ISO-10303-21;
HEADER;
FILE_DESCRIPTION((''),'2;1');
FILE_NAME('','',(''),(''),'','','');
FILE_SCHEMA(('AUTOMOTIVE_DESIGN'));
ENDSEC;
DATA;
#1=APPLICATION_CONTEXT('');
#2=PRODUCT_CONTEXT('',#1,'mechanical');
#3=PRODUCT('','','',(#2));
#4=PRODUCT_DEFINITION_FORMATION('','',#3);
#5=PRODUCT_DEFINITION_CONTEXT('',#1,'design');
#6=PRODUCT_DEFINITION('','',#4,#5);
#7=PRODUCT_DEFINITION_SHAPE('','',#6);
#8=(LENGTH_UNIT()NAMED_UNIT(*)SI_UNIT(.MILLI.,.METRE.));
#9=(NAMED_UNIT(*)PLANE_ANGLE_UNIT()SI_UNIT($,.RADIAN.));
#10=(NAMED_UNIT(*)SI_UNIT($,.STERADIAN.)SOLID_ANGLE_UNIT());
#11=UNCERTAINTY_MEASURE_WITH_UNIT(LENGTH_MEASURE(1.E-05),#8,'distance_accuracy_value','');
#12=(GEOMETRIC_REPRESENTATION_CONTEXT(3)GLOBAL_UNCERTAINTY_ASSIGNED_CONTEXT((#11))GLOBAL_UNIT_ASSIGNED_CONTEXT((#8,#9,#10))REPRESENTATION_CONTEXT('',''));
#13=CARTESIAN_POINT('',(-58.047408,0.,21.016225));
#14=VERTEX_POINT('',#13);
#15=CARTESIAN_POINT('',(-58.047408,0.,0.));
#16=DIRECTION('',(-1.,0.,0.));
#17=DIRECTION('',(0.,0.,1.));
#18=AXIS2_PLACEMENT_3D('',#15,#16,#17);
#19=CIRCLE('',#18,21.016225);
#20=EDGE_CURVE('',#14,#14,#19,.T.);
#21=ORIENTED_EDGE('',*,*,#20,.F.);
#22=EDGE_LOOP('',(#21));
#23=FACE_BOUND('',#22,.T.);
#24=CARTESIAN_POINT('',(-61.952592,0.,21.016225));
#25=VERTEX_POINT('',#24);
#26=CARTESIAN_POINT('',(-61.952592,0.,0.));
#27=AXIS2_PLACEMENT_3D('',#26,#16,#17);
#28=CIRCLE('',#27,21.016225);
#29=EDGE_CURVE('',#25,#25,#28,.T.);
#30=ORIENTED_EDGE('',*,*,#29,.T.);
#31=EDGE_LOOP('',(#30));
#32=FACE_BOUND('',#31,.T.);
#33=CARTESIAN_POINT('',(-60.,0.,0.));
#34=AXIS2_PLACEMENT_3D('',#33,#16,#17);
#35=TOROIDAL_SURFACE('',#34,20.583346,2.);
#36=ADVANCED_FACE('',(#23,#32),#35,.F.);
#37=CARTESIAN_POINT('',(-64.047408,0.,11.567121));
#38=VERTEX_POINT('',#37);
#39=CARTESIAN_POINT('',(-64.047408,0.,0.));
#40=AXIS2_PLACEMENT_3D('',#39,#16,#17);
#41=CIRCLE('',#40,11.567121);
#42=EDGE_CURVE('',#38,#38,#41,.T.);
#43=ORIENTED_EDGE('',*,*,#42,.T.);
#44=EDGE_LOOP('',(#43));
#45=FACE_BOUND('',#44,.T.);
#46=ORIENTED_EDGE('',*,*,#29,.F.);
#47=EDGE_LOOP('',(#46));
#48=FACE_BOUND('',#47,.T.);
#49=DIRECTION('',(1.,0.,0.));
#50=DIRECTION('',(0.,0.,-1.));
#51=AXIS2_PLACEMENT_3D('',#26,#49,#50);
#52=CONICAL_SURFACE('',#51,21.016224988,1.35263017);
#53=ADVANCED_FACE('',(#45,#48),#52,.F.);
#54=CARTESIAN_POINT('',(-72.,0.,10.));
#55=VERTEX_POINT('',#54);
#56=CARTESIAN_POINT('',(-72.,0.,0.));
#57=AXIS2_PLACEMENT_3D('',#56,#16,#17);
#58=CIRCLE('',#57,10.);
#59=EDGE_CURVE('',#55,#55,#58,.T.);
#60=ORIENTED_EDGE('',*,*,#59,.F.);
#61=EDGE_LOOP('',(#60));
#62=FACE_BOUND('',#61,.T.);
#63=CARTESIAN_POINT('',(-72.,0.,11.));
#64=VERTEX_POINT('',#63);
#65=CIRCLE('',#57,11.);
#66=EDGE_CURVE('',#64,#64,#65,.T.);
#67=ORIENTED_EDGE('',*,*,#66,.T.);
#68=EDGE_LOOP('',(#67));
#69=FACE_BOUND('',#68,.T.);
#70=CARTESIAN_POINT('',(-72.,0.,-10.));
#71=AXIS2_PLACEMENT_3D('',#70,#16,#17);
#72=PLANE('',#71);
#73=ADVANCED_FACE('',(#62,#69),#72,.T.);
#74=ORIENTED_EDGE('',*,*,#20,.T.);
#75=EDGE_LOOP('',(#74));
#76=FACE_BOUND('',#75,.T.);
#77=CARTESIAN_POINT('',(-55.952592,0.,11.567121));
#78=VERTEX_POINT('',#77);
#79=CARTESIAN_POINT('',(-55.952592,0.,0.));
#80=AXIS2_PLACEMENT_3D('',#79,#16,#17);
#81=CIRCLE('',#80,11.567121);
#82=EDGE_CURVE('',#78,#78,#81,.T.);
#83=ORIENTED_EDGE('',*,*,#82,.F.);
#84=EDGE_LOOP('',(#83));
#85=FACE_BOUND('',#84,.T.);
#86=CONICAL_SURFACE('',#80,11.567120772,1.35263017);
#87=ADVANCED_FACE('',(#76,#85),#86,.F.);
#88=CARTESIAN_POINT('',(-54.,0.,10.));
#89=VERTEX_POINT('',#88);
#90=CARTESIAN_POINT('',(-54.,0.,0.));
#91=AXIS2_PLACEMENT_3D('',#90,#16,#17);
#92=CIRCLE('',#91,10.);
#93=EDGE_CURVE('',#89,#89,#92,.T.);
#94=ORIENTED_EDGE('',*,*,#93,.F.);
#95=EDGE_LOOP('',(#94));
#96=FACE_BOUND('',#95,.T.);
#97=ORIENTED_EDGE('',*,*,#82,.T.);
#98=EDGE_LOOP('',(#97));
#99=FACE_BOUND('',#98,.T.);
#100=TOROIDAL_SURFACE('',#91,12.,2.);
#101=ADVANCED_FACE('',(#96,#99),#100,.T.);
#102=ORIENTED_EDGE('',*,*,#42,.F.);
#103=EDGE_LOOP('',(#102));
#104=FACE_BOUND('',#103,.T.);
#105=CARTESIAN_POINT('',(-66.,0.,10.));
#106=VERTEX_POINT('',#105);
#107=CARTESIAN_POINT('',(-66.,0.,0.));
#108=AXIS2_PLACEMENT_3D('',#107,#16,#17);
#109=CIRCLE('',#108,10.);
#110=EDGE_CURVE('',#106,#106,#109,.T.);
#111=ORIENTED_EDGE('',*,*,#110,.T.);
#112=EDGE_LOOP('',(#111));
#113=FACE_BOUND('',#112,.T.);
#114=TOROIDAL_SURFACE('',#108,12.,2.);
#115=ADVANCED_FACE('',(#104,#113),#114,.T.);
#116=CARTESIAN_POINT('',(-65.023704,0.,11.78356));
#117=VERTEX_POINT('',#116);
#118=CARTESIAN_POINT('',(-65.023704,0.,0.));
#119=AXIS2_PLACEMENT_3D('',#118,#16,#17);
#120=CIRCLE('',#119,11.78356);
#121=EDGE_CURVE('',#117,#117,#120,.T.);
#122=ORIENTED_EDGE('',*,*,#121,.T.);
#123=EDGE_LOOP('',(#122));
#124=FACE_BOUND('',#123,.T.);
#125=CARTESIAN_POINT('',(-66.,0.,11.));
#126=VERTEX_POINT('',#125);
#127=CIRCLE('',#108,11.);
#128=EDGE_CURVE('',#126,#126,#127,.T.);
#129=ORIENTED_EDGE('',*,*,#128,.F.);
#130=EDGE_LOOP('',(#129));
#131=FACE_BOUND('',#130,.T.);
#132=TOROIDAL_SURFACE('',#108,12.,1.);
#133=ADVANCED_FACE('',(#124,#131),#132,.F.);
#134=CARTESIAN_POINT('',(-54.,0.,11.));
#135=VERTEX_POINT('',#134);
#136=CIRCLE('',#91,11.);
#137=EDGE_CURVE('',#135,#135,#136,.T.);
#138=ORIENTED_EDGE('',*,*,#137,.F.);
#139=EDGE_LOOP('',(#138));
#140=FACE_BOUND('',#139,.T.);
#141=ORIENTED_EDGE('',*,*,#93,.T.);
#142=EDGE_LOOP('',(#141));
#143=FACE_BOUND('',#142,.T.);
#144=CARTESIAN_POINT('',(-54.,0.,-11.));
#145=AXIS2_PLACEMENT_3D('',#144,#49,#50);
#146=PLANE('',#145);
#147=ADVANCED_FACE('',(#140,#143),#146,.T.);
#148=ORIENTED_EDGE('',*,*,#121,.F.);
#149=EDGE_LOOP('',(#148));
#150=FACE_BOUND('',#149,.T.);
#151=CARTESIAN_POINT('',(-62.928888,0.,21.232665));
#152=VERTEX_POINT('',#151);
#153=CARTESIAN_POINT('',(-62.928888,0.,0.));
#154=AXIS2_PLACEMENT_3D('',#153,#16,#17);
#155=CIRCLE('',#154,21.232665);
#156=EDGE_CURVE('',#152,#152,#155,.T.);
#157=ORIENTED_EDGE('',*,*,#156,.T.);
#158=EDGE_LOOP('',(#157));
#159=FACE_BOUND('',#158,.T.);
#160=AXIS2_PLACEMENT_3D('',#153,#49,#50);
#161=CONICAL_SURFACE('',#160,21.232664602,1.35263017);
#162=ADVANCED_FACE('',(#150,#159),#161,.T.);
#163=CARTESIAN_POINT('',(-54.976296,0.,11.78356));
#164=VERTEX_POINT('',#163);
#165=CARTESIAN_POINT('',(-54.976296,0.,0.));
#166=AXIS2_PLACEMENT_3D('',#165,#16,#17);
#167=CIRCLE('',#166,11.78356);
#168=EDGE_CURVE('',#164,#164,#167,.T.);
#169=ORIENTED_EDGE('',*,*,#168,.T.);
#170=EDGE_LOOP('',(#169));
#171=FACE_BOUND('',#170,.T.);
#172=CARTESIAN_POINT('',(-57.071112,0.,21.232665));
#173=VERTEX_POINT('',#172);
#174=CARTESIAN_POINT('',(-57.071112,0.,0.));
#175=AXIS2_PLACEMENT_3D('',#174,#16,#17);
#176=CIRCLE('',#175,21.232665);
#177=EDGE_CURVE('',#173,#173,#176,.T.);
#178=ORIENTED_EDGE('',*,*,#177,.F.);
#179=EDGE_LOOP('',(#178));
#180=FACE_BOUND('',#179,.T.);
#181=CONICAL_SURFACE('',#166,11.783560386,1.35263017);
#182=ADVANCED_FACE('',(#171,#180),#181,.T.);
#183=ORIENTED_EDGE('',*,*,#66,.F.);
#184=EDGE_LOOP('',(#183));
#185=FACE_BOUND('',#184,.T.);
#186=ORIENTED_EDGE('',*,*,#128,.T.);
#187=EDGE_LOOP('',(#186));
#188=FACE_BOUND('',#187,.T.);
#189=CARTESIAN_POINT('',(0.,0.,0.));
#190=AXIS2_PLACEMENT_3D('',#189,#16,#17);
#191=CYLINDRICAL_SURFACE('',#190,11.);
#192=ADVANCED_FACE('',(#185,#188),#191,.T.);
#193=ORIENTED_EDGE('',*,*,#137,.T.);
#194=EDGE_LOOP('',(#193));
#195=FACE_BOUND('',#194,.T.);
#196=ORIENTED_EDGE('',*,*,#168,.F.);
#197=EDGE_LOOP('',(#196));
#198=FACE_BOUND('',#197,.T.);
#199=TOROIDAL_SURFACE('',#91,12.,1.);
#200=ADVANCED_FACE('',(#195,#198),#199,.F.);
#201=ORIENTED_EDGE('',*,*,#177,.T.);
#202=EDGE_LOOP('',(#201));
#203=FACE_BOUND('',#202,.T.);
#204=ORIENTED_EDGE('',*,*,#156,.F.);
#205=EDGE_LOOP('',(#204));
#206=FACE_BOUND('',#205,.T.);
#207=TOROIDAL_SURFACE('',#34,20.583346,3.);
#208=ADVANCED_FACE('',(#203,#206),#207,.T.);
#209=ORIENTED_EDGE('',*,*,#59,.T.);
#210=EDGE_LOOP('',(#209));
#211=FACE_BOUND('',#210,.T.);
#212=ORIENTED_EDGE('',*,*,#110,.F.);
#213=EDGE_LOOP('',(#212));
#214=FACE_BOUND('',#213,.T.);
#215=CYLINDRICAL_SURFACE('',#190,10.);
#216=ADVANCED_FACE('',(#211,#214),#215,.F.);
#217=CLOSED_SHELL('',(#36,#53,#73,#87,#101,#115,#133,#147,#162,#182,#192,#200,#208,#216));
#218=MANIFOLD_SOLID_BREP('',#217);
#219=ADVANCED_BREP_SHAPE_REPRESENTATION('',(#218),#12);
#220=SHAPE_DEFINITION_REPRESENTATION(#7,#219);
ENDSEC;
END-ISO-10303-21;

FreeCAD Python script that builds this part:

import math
import FreeCAD as App
import Part
import Sketcher
Q = App.Units.Quantity

doc = App.newDocument("Part")
body = doc.addObject("PartDesign::Body", "Body")

sketch1 = doc.addObject("Sketcher::SketchObject", "Sketch")
body.addObject(sketch1)
sketch1.AttachmentSupport = (doc.XZ_Plane, [""])
sketch1.MapMode = "FlatFace"
sketch1.addGeometry(Part.ArcOfCircle(Part.Circle(App.Vector(-54, -12, 0), App.Vector(0, 0, 1), 2), math.radians(90), math.radians(167)), False)
sketch1.addGeometry(Part.LineSegment(App.Vector(-54, -10, 0), App.Vector(-54, -11, 0)), False)
sketch1.addGeometry(Part.ArcOfCircle(Part.Circle(App.Vector(-54, -12, 0), App.Vector(0, 0, 1), 1), math.radians(90), math.radians(167)), False)
sketch1.addGeometry(Part.LineSegment(App.Vector(-55, -11.8, 0), App.Vector(-57.1, -21.2, 0)), False)
sketch1.addGeometry(Part.ArcOfCircle(Part.Circle(App.Vector(-60, -20.6, 0), App.Vector(0, 0, 1), 3), math.radians(-168), math.radians(-12)), False)
sketch1.addGeometry(Part.LineSegment(App.Vector(-62.9, -21.2, 0), App.Vector(-65, -11.8, 0)), False)
sketch1.addGeometry(Part.ArcOfCircle(Part.Circle(App.Vector(-66, -12, 0), App.Vector(0, 0, 1), 1), math.radians(13), math.radians(90)), False)
sketch1.addGeometry(Part.LineSegment(App.Vector(-66, -11, 0), App.Vector(-72, -11, 0)), False)
sketch1.addGeometry(Part.LineSegment(App.Vector(-72, -11, 0), App.Vector(-72, -10, 0)), False)
sketch1.addGeometry(Part.LineSegment(App.Vector(-72, -10, 0), App.Vector(-66, -10, 0)), False)
sketch1.addGeometry(Part.ArcOfCircle(Part.Circle(App.Vector(-66, -12, 0), App.Vector(0, 0, 1), 2), math.radians(13), math.radians(90)), False)
sketch1.addGeometry(Part.LineSegment(App.Vector(-64, -11.6, 0), App.Vector(-62, -21, 0)), False)
sketch1.addGeometry(Part.ArcOfCircle(Part.Circle(App.Vector(-60, -20.6, 0), App.Vector(0, 0, 1), 2), math.radians(-168), math.radians(-12)), False)
sketch1.addGeometry(Part.LineSegment(App.Vector(-58, -21, 0), App.Vector(-56, -11.6, 0)), False)
sketch1.addConstraint(Sketcher.Constraint("Coincident", 0, 1, 1, 1))
sketch1.addConstraint(Sketcher.Constraint("Coincident", 1, 2, 2, 1))
sketch1.addConstraint(Sketcher.Constraint("Tangent", 2, 2, 3, 1))
sketch1.addConstraint(Sketcher.Constraint("Tangent", 3, 2, 4, 2))
sketch1.addConstraint(Sketcher.Constraint("Tangent", 4, 1, 5, 1))
sketch1.addConstraint(Sketcher.Constraint("Tangent", 5, 2, 6, 1))
sketch1.addConstraint(Sketcher.Constraint("Tangent", 6, 2, 7, 1))
sketch1.addConstraint(Sketcher.Constraint("Coincident", 7, 2, 8, 1))
sketch1.addConstraint(Sketcher.Constraint("Coincident", 8, 2, 9, 1))
sketch1.addConstraint(Sketcher.Constraint("Tangent", 9, 2, 10, 2))
sketch1.addConstraint(Sketcher.Constraint("Tangent", 10, 1, 11, 1))
sketch1.addConstraint(Sketcher.Constraint("Tangent", 11, 2, 12, 1))
sketch1.addConstraint(Sketcher.Constraint("Tangent", 12, 2, 13, 1))
sketch1.addConstraint(Sketcher.Constraint("Tangent", 13, 2, 0, 2))
sketch1.addConstraint(Sketcher.Constraint("Vertical", 1))
sketch1.addConstraint(Sketcher.Constraint("Horizontal", 7))
sketch1.addConstraint(Sketcher.Constraint("Vertical", 8))
sketch1.addConstraint(Sketcher.Constraint("Horizontal", 9))
sketch1.addConstraint(Sketcher.Constraint("Coincident", 2, 3, 0, 3))
sketch1.addConstraint(Sketcher.Constraint("Coincident", 10, 3, 6, 3))
sketch1.addConstraint(Sketcher.Constraint("Coincident", 12, 3, 4, 3))
sketch1.addConstraint(Sketcher.Constraint("Equal", 2, 6))
sketch1.addConstraint(Sketcher.Constraint("Equal", 0, 10))
sketch1.addConstraint(Sketcher.Constraint("Equal", 10, 12))
sketch1.addConstraint(Sketcher.Constraint("Parallel", 5, 11))
sketch1.addConstraint(Sketcher.Constraint("Horizontal", 2, 3, 6, 3))
sketch1.addConstraint(Sketcher.Constraint("Horizontal", 3, 2, 4, 1))
sketch1.addConstraint(Sketcher.Constraint("Vertical", 2, 3, 0, 1))
sketch1.addConstraint(Sketcher.Constraint("Radius", 0, 2.0))
sketch1.addConstraint(Sketcher.Constraint("Radius", 2, 1.0))
sketch1.addConstraint(Sketcher.Constraint("DistanceX", 7, 2, 7, 1, 6.0))
sketch1.addConstraint(Sketcher.Constraint("DistanceX", 0, 3, -1, 1, 54.0))
sketch1.addConstraint(Sketcher.Constraint("DistanceY", 0, 3, -1, 1, 12.0))
sketch1.addConstraint(Sketcher.Constraint("DistanceX", 4, 3, -1, 1, 60.0))
sketch1.addConstraint(Sketcher.Constraint("Angle", 3, Q("-102.5 deg")))
revolution = doc.addObject("PartDesign::Revolution", "Revolution")
body.addObject(revolution)
revolution.Profile = sketch1
revolution.ReferenceAxis = (sketch1, ["H_Axis"])
revolution.Angle = 360

doc.recompute()
